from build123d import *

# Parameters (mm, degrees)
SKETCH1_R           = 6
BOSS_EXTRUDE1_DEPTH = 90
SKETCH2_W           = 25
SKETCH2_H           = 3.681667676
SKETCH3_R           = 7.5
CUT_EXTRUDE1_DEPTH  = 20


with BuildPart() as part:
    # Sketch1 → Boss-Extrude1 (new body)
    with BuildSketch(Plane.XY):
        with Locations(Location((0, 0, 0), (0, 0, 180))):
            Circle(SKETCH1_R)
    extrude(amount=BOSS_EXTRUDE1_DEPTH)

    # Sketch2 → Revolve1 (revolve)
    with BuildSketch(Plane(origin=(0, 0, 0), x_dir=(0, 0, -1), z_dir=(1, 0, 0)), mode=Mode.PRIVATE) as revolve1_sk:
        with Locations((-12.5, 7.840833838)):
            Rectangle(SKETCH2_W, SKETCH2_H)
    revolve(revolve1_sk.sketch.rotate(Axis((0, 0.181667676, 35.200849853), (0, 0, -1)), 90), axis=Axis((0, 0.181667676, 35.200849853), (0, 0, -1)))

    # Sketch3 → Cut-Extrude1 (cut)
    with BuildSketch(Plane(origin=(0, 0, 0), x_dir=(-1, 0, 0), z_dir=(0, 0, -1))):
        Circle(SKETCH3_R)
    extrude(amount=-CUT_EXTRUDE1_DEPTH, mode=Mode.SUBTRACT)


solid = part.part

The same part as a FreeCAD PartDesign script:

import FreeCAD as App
import Part
import Sketcher


def add_polygon(sketch, points):
    """Adds a closed chain of lines whose ends are joined by coincident constraints."""
    first, n = sketch.GeometryCount, len(points)
    for a, b in zip(points, points[1:] + points[:1]):
        sketch.addGeometry(Part.LineSegment(App.Vector(*a, 0), App.Vector(*b, 0)), False)
    for i in range(n):
        sketch.addConstraint(Sketcher.Constraint("Coincident", first + i, 2, first + (i + 1) % n, 1))

doc = App.newDocument("Part")
body = doc.addObject("PartDesign::Body", "Body")

sketch1 = doc.addObject("Sketcher::SketchObject", "Sketch")
body.addObject(sketch1)
sketch1.AttachmentSupport = (doc.XY_Plane, [""])
sketch1.MapMode = "FlatFace"
sketch1.addGeometry(Part.Circle(App.Vector(0, 0, 0), App.Vector(0, 0, 1), 6), False)
sketch1.addConstraint([
    Sketcher.Constraint("Coincident", 0, 3, -1, 1),
    Sketcher.Constraint("Diameter", 0, 12.0),
])
pad1 = doc.addObject("PartDesign::Pad", "Pad")
body.addObject(pad1)
pad1.Profile = sketch1
pad1.Length = 90

sketch2 = doc.addObject("Sketcher::SketchObject", "Sketch001")
body.addObject(sketch2)
sketch2.AttachmentSupport = (doc.YZ_Plane, [""])
sketch2.MapMode = "FlatFace"
add_polygon(sketch2, [(9.7, 25), (6, 25), (6, 0), (9.7, 0)])
sketch2.addGeometry(Part.LineSegment(App.Vector(0.2, 25, 0), App.Vector(0.2, 0, 0)), True)
sketch2.addConstraint([
    Sketcher.Constraint("Horizontal", 0),
    Sketcher.Constraint("Vertical", 1),
    Sketcher.Constraint("Horizontal", 2),
    Sketcher.Constraint("Vertical", 3),
    Sketcher.Constraint("Vertical", 4),
    Sketcher.Constraint("PointOnObject", 1, 2, -1),
    Sketcher.Constraint("PointOnObject", 4, 2, -1),
    Sketcher.Constraint("Horizontal", 3, 2, 4, 1),
    Sketcher.Constraint("DistanceY", 1, 2, 1, 1, 25.0),
    Sketcher.Constraint("DistanceX", -1, 1, 0, 2, 6.0),
    Sketcher.Constraint("DistanceX", 4, 1, 3, 2, 9.5),
    Sketcher.Constraint("DistanceX", 0, 2, 0, 1, 3.681668),
])
revolution = doc.addObject("PartDesign::Revolution", "Revolution")
body.addObject(revolution)
revolution.Profile = sketch2
revolution.ReferenceAxis = (sketch2, ["Axis0"])
revolution.Angle = 360

sketch3 = doc.addObject("Sketcher::SketchObject", "Sketch002")
body.addObject(sketch3)
sketch3.AttachmentSupport = (doc.XY_Plane, [""])
sketch3.MapMode = "FlatFace"
sketch3.addGeometry(Part.Circle(App.Vector(0, 0, 0), App.Vector(0, 0, 1), 8), False)
sketch3.addConstraint([
    Sketcher.Constraint("Coincident", 0, 3, -1, 1),
    Sketcher.Constraint("Diameter", 0, 15.0),
])
pocket1 = doc.addObject("PartDesign::Pocket", "Pocket")
body.addObject(pocket1)
pocket1.Profile = sketch3
pocket1.Length = 20
pocket1.Reversed = True

doc.recompute()
